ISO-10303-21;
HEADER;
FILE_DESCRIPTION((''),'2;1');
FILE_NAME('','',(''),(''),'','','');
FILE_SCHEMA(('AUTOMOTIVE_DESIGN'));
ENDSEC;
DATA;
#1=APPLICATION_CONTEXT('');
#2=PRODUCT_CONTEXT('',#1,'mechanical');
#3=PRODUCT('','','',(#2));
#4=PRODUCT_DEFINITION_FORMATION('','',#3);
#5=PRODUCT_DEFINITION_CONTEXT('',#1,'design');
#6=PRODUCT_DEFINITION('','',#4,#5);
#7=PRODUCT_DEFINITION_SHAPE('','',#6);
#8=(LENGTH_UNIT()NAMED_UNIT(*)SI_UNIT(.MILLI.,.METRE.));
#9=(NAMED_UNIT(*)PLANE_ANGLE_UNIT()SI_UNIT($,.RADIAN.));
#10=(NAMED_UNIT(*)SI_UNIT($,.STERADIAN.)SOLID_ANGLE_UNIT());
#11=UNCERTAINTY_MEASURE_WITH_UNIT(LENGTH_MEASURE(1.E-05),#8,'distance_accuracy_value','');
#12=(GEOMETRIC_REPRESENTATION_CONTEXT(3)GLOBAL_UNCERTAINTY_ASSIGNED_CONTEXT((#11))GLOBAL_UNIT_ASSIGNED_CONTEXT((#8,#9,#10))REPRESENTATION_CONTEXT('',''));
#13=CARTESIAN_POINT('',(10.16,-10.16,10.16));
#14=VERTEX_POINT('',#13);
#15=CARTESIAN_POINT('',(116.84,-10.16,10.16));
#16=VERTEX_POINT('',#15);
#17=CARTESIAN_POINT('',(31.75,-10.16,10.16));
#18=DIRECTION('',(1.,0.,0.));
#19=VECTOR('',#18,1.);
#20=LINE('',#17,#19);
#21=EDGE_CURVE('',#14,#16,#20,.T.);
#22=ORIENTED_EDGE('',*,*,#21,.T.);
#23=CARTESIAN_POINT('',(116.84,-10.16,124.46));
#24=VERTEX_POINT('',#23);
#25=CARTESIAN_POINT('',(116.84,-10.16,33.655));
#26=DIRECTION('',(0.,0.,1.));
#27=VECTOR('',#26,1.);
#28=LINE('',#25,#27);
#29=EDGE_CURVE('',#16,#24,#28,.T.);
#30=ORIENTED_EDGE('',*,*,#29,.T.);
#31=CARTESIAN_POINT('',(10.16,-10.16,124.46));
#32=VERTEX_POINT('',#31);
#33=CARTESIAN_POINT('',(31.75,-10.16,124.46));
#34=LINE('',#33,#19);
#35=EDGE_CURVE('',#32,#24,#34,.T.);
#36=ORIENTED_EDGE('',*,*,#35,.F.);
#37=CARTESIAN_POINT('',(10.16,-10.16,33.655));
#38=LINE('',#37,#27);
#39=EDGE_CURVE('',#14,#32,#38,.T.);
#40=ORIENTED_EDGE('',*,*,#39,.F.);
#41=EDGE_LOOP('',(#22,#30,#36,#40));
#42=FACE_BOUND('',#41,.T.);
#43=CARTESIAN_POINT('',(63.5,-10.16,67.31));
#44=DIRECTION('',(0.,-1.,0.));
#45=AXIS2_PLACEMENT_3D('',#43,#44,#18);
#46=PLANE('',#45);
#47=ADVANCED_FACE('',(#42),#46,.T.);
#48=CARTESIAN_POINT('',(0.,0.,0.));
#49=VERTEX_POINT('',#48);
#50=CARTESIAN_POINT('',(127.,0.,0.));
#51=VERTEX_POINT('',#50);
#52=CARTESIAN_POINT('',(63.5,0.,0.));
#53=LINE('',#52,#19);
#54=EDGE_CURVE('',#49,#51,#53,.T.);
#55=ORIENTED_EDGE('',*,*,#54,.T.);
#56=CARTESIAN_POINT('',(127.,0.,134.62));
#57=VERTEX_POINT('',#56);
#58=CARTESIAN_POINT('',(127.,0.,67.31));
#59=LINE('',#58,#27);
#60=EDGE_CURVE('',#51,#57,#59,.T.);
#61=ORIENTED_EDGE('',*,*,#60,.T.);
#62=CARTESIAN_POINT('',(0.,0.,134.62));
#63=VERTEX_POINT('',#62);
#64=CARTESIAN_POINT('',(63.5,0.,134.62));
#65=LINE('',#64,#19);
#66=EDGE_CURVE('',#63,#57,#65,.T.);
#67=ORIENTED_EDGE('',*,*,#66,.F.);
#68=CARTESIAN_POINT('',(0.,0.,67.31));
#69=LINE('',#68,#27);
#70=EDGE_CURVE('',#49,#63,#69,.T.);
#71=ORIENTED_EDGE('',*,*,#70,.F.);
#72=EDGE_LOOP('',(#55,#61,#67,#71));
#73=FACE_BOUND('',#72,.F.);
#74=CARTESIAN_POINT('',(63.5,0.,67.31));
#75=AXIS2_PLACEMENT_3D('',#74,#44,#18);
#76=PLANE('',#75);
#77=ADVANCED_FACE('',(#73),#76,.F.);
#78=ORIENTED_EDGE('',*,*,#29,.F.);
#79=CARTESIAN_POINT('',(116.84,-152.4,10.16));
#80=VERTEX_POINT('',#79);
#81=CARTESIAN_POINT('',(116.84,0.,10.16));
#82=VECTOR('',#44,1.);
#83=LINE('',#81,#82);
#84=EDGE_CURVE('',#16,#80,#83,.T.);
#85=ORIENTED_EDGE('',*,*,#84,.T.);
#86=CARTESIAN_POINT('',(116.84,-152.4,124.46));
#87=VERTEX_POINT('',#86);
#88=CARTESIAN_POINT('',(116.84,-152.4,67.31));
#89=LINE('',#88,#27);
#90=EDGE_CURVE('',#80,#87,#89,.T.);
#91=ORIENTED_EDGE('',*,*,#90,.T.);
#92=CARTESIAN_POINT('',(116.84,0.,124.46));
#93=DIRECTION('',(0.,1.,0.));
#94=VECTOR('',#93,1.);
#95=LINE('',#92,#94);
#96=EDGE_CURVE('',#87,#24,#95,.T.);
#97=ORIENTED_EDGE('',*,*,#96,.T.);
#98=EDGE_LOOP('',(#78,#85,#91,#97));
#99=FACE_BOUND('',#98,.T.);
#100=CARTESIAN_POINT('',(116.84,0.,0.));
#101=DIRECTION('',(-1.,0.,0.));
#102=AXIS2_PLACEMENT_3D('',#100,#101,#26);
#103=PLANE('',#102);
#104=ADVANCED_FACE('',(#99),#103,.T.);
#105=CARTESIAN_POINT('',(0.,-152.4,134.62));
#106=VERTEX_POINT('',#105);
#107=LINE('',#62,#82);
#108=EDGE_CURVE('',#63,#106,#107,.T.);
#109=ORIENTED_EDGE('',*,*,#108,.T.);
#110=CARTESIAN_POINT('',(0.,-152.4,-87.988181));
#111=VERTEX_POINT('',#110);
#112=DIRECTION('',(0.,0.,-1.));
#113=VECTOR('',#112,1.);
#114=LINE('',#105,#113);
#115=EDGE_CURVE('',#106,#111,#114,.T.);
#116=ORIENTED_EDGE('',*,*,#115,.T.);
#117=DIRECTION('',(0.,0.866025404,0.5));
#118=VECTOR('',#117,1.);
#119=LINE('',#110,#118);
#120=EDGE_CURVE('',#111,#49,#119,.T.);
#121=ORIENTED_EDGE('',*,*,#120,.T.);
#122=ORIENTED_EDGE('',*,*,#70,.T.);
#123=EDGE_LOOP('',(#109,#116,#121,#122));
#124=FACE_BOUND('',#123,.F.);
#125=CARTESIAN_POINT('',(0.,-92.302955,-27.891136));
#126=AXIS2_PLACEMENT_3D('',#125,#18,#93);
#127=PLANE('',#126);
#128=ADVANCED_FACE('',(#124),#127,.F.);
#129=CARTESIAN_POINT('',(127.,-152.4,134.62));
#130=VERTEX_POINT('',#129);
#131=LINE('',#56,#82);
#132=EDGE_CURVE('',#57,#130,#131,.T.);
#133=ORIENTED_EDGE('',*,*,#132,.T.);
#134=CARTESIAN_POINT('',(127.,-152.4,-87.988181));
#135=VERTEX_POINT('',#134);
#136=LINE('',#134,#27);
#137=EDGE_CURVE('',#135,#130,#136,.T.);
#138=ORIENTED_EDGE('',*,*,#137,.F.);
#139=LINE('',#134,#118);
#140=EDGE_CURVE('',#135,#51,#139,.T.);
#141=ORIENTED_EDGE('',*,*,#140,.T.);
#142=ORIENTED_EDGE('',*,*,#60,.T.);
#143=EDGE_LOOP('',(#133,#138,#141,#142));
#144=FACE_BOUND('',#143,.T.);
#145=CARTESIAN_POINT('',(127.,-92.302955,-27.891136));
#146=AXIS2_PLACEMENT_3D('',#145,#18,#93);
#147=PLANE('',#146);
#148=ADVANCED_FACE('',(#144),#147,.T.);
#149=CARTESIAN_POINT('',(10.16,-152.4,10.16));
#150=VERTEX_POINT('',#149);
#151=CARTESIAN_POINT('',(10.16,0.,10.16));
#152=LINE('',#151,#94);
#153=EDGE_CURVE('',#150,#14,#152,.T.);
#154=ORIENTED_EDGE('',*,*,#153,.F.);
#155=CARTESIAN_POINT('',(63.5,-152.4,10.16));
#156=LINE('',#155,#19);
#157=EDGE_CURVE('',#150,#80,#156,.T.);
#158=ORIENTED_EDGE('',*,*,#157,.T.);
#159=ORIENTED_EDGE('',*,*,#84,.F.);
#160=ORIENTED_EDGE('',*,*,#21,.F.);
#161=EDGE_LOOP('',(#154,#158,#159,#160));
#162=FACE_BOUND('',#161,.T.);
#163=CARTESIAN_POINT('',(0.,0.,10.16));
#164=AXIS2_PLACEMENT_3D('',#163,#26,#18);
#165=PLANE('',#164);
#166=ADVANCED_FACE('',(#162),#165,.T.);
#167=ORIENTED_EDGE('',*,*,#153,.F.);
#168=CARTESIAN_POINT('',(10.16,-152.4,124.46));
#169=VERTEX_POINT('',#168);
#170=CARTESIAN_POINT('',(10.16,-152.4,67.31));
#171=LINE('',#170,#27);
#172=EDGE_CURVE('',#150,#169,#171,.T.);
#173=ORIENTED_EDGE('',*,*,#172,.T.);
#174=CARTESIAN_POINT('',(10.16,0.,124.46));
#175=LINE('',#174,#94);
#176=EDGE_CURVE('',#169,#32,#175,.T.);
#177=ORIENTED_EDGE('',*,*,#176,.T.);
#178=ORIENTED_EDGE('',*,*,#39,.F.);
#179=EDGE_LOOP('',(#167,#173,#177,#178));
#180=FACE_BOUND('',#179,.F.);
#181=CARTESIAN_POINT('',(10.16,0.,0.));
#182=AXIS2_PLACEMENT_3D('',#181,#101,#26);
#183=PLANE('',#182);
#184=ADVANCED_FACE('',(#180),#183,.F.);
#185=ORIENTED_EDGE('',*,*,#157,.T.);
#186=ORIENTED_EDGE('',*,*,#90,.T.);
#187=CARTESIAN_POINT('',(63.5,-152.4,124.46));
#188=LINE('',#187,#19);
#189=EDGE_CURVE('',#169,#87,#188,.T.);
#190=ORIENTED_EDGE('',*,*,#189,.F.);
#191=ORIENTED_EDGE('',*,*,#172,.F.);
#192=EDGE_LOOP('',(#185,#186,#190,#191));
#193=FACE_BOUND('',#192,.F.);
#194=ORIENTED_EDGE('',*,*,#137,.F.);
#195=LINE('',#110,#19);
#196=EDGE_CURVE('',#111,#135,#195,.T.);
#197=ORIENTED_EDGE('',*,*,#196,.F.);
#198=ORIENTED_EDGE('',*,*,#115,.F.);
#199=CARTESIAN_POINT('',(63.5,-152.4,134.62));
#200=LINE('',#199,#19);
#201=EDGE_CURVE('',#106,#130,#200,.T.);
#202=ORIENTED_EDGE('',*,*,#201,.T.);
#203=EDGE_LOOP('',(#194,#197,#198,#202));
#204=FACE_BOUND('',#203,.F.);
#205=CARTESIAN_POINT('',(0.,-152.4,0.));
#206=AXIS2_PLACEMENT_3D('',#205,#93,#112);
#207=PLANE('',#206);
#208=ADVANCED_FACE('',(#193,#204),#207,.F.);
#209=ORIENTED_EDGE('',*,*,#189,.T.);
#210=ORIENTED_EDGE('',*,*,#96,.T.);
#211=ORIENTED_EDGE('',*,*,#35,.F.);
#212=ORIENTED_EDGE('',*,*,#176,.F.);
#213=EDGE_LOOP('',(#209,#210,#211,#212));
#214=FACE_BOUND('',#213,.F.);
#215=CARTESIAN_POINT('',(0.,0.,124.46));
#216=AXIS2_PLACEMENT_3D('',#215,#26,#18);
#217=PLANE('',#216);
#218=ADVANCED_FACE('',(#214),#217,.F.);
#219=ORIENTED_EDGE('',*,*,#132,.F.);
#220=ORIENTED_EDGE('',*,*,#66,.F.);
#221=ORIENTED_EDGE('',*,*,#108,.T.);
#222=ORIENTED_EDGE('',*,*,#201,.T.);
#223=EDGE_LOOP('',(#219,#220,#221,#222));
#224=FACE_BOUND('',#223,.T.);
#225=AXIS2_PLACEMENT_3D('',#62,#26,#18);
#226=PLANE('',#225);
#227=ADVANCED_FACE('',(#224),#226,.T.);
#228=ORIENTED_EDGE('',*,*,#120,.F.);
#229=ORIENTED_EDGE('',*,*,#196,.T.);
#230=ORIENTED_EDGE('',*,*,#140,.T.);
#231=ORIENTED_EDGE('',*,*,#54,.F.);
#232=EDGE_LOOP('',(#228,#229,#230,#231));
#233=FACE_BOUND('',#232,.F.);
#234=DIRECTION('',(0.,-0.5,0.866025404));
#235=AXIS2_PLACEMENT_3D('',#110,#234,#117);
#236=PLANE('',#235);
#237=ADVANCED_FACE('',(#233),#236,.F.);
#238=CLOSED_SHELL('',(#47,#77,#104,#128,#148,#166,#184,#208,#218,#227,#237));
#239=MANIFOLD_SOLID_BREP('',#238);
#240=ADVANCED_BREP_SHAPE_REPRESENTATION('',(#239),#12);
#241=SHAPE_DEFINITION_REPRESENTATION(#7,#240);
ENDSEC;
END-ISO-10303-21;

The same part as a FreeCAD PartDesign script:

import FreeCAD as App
import Part
import Sketcher

V = App.Vector
Q = App.Units.Quantity


def faces_at(feature, points):
    """Names of the faces that lie closest to the given points."""
    faces = feature.Shape.Faces
    near = lambda p: min(range(len(faces)), key=lambda i: faces[i].distToShape(Part.Vertex(*p))[0])
    return sorted({f"Face{near(p) + 1}" for p in points})


def add_polygon(sketch, points):
    """Adds a closed chain of lines whose ends are joined by coincident constraints."""
    first, n = sketch.GeometryCount, len(points)
    for a, b in zip(points, points[1:] + points[:1]):
        sketch.addGeometry(Part.LineSegment(App.Vector(*a, 0), App.Vector(*b, 0)), False)
    for i in range(n):
        sketch.addConstraint(Sketcher.Constraint("Coincident", first + i, 2, first + (i + 1) % n, 1))

doc = App.newDocument("Part")
body = doc.addObject("PartDesign::Body", "Body")

# Sketch on XZ plane
sketch1 = doc.addObject("Sketcher::SketchObject", "Sketch")
body.addObject(sketch1)
sketch1.AttachmentSupport = (doc.XZ_Plane, [""])
sketch1.MapMode = "FlatFace"
add_polygon(sketch1, [(0, 134.62), (0, 0), (127, 0), (127, 134.62)])  # lines 0-3
sketch1.addConstraint([
    Sketcher.Constraint("Vertical", 0),
    Sketcher.Constraint("Horizontal", 1),
    Sketcher.Constraint("Vertical", 2),
    Sketcher.Constraint("Horizontal", 3),
    Sketcher.Constraint("Coincident", 0, 2, -1, 1),
    Sketcher.Constraint("DistanceX", 1, 1, 1, 2, Q("5 in")),
    Sketcher.Constraint("DistanceY", 0, 2, 0, 1, Q("5.3 in")),
])
pad1 = doc.addObject("PartDesign::Pad", "Pad")
body.addObject(pad1)
pad1.Profile = sketch1
pad1.Length = Q("6 in")
doc.recompute()

thickness = doc.addObject("PartDesign::Thickness", "Thickness")
body.addObject(thickness)
thickness.Base = (pad1, faces_at(pad1, [(63.5, -152.4, 67.31)]))
thickness.Value = Q("0.4 in")
thickness.Reversed = True
thickness.Join = "Arc"

# Sketch on YZ plane
sketch2 = doc.addObject("Sketcher::SketchObject", "Sketch001")
body.addObject(sketch2)
sketch2.AttachmentSupport = (doc.YZ_Plane, [""])
sketch2.MapMode = "FlatFace"
add_polygon(sketch2, [(-152.4, -87.988181), (0, 0), (-152.4, 0)])  # lines 0-2
sketch2.addConstraint([
    Sketcher.Constraint("Horizontal", 1),
    Sketcher.Constraint("Vertical", 2),
    Sketcher.Constraint("Coincident", 0, 2, -1, 1),
    Sketcher.Constraint("DistanceX", 1, 2, 1, 1, Q("6 in")),
    Sketcher.Constraint("Angle", 0, Q("30 deg")),
])
pad2 = doc.addObject("PartDesign::Pad", "Pad001")
body.addObject(pad2)
pad2.Profile = sketch2
pad2.Length = Q("5 in")

doc.recompute()
